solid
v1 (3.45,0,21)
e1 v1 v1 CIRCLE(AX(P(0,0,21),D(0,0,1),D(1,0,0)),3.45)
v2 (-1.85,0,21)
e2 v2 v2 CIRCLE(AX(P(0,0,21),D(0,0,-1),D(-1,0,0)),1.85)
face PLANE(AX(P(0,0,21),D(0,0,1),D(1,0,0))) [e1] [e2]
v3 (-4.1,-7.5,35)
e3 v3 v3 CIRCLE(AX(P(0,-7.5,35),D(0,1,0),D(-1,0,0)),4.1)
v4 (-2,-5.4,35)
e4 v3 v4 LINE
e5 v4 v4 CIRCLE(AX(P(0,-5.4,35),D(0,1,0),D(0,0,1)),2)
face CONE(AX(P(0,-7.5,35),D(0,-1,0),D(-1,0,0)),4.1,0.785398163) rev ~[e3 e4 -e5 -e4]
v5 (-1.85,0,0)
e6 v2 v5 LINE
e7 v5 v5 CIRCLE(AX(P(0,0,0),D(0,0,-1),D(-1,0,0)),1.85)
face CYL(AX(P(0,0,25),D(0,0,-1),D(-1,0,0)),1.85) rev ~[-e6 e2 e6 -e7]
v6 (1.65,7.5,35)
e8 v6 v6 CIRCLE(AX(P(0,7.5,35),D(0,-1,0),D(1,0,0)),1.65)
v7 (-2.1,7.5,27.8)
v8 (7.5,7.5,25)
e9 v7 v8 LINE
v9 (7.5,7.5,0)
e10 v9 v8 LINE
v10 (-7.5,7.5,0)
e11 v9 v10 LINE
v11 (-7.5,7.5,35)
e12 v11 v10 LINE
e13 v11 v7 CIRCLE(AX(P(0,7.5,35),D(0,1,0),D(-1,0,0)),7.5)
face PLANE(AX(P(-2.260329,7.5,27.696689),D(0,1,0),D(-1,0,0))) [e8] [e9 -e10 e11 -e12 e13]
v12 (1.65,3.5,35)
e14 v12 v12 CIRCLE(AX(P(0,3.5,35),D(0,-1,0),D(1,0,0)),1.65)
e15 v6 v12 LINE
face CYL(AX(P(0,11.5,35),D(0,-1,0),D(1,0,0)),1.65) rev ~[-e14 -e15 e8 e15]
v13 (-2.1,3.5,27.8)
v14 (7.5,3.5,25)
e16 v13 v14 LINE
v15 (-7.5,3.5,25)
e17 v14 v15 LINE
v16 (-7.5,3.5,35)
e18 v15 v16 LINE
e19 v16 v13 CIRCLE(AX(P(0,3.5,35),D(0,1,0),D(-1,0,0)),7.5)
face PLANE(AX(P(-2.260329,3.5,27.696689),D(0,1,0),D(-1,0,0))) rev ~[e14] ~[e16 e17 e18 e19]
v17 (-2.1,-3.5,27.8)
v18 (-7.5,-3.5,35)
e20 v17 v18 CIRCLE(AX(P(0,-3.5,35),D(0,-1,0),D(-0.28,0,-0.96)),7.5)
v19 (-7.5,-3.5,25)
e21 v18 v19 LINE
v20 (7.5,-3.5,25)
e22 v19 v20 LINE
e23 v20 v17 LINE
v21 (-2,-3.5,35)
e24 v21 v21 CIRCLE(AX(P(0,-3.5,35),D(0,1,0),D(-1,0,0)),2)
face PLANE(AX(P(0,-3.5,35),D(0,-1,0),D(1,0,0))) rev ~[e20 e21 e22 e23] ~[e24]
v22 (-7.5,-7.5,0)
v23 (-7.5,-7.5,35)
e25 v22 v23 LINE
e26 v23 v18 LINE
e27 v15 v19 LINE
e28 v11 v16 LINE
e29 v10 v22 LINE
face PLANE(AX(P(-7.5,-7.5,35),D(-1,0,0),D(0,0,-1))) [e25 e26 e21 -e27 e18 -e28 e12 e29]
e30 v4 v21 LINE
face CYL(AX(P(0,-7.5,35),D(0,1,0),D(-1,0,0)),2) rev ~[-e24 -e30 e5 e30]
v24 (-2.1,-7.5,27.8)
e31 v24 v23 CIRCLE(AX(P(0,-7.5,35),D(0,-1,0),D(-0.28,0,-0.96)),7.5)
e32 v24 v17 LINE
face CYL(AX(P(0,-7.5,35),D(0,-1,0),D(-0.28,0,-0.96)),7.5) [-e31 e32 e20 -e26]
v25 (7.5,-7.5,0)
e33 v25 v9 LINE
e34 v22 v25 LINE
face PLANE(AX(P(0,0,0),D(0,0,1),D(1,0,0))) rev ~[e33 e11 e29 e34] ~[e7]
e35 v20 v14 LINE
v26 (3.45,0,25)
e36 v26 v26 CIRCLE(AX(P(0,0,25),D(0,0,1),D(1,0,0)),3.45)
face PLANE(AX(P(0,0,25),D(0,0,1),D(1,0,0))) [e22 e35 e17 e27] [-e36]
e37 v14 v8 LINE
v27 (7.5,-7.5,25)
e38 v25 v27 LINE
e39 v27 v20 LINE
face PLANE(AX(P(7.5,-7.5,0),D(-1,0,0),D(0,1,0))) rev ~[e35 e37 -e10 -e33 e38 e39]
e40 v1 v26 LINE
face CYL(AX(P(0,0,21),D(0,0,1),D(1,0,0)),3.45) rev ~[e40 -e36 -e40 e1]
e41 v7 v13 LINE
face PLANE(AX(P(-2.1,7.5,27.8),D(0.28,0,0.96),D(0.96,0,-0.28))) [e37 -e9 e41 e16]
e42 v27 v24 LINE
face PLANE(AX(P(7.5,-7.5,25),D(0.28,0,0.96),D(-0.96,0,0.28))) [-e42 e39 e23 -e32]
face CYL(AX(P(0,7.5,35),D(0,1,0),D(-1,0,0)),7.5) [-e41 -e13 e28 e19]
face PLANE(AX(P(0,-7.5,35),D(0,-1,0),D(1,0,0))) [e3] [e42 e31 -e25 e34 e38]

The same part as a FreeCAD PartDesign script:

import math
import FreeCAD as App
import Part
import Sketcher

doc = App.newDocument("Part")
body = doc.addObject("PartDesign::Body", "Body")

sketch1 = body.newObject("Sketcher::SketchObject", "Sketch")
sketch1.AttachmentSupport = (doc.getObject("XY_Plane"), [""])
sketch1.MapMode = "FlatFace"
sketch1.addGeometry(Part.LineSegment(App.Vector(8, -8, 0), App.Vector(8, 8, 0)), False)
sketch1.addGeometry(Part.LineSegment(App.Vector(8, 8, 0), App.Vector(-8, 8, 0)), False)
sketch1.addGeometry(Part.LineSegment(App.Vector(-8, 8, 0), App.Vector(-8, -8, 0)), False)
sketch1.addGeometry(Part.LineSegment(App.Vector(-8, -8, 0), App.Vector(8, -8, 0)), False)
sketch1.addConstraint(Sketcher.Constraint("Coincident", 0, 2, 1, 1))
sketch1.addConstraint(Sketcher.Constraint("Coincident", 1, 2, 2, 1))
sketch1.addConstraint(Sketcher.Constraint("Coincident", 2, 2, 3, 1))
sketch1.addConstraint(Sketcher.Constraint("Coincident", 3, 2, 0, 1))
sketch1.addConstraint(Sketcher.Constraint("Vertical", 0))
sketch1.addConstraint(Sketcher.Constraint("Horizontal", 1))
sketch1.addConstraint(Sketcher.Constraint("Vertical", 2))
sketch1.addConstraint(Sketcher.Constraint("Horizontal", 3))
sketch1.addConstraint(Sketcher.Constraint("Symmetric", 0, 2, 2, 2, -1, 1))
sketch1.addConstraint(Sketcher.Constraint("Equal", 3, 0))
sketch1.addConstraint(Sketcher.Constraint("DistanceX", 1, 2, 1, 1, 15.0))
pad1 = body.newObject("PartDesign::Pad", "Pad")
pad1.Profile = sketch1
pad1.Length = 25

sketch2 = body.newObject("Sketcher::SketchObject", "Sketch001")
sketch2.AttachmentSupport = (doc.getObject("XY_Plane"), [""])
sketch2.MapMode = "FlatFace"
sketch2.AttachmentOffset = App.Placement(App.Vector(0, 0, 25), App.Rotation())
sketch2.addGeometry(Part.Circle(App.Vector(0, 0, 0), App.Vector(0, 0, 1), 1.9), False)
sketch2.addConstraint(Sketcher.Constraint("Coincident", 0, 3, -1, 1))
sketch2.addConstraint(Sketcher.Constraint("Diameter", 0, 3.7))
doc.recompute()
hole = body.newObject("PartDesign::Hole", "Hole")
hole.Profile = sketch2
hole.ThreadType = "None"
hole.Diameter = 3.7
hole.DepthType = "ThroughAll"
hole.HoleCutType = "Counterbore"
hole.HoleCutDiameter = 6.9
hole.HoleCutDepth = 4

sketch3 = body.newObject("Sketcher::SketchObject", "Sketch002")
sketch3.AttachmentSupport = (doc.getObject("XZ_Plane"), [""])
sketch3.MapMode = "FlatFace"
sketch3.AttachmentOffset = App.Placement(App.Vector(0, 0, -7.5), App.Rotation())
sketch3.addGeometry(Part.LineSegment(App.Vector(8, 25, 0), App.Vector(-8, 25, 0)), False)
sketch3.addGeometry(Part.LineSegment(App.Vector(-8, 25, 0), App.Vector(-8, 35, 0)), False)
sketch3.addGeometry(Part.ArcOfCircle(Part.Circle(App.Vector(0, 35, 0), App.Vector(0, 0, 1), 8), math.radians(-106), math.radians(180)), False)
sketch3.addGeometry(Part.LineSegment(App.Vector(-2, 28, 0), App.Vector(8, 25, 0)), False)
sketch3.addConstraint(Sketcher.Constraint("Coincident", 0, 2, 1, 1))
sketch3.addConstraint(Sketcher.Constraint("Tangent", 1, 2, 2, 2))
sketch3.addConstraint(Sketcher.Constraint("Tangent", 2, 1, 3, 1))
sketch3.addConstraint(Sketcher.Constraint("Coincident", 3, 2, 0, 1))
sketch3.addConstraint(Sketcher.Constraint("Horizontal", 0))
sketch3.addConstraint(Sketcher.Constraint("Vertical", 1))
sketch3.addConstraint(Sketcher.Constraint("PointOnObject", 2, 3, -2))
sketch3.addConstraint(Sketcher.Constraint("Radius", 2, 7.5))
sketch3.addConstraint(Sketcher.Constraint("DistanceX", 0, 2, 0, 1, 15.0))
sketch3.addConstraint(Sketcher.Constraint("DistanceY", 1, 1, 1, 2, 10.0))
sketch3.addConstraint(Sketcher.Constraint("DistanceY", -1, 1, 2, 3, 35.0))
pad2 = body.newObject("PartDesign::Pad", "Pad001")
pad2.Profile = sketch3
pad2.Length = 4

sketch4 = body.newObject("Sketcher::SketchObject", "Sketch003")
sketch4.AttachmentSupport = (doc.getObject("XZ_Plane"), [""])
sketch4.MapMode = "FlatFace"
sketch4.AttachmentOffset = App.Placement(App.Vector(0, 0, 7.5), App.Rotation())
sketch4.addGeometry(Part.ArcOfCircle(Part.Circle(App.Vector(0, 35, 0), App.Vector(0, 0, 1), 8), math.radians(-106), math.radians(180)), False)
sketch4.addGeometry(Part.LineSegment(App.Vector(-8, 35, 0), App.Vector(-8, 25, 0)), False)
sketch4.addGeometry(Part.LineSegment(App.Vector(-8, 25, 0), App.Vector(8, 25, 0)), False)
sketch4.addGeometry(Part.LineSegment(App.Vector(8, 25, 0), App.Vector(-2, 28, 0)), False)
sketch4.addConstraint(Sketcher.Constraint("Tangent", 0, 2, 1, 1))
sketch4.addConstraint(Sketcher.Constraint("Coincident", 1, 2, 2, 1))
sketch4.addConstraint(Sketcher.Constraint("Coincident", 2, 2, 3, 1))
sketch4.addConstraint(Sketcher.Constraint("Tangent", 3, 2, 0, 1))
sketch4.addConstraint(Sketcher.Constraint("Vertical", 1))
sketch4.addConstraint(Sketcher.Constraint("Horizontal", 2))
sketch4.addConstraint(Sketcher.Constraint("PointOnObject", 0, 3, -2))
sketch4.addConstraint(Sketcher.Constraint("Radius", 0, 7.5))
sketch4.addConstraint(Sketcher.Constraint("DistanceX", 2, 1, 2, 2, 15.0))
sketch4.addConstraint(Sketcher.Constraint("DistanceY", 1, 2, 1, 1, 10.0))
sketch4.addConstraint(Sketcher.Constraint("DistanceY", -1, 1, 0, 3, 35.0))
pad3 = body.newObject("PartDesign::Pad", "Pad002")
pad3.Profile = sketch4
pad3.Length = 4
pad3.Reversed = True

sketch5 = body.newObject("Sketcher::SketchObject", "Sketch004")
sketch5.AttachmentSupport = (doc.getObject("XZ_Plane"), [""])
sketch5.MapMode = "FlatFace"
sketch5.AttachmentOffset = App.Placement(App.Vector(0, 0, 7.5), App.Rotation())
sketch5.addGeometry(Part.Circle(App.Vector(0, 35, 0), App.Vector(0, 0, 1), 2), False)
sketch5.addConstraint(Sketcher.Constraint("PointOnObject", 0, 3, -2))
sketch5.addConstraint(Sketcher.Constraint("Diameter", 0, 4.0))
sketch5.addConstraint(Sketcher.Constraint("DistanceY", -1, 1, 0, 3, 35.0))
doc.recompute()
hole2 = body.newObject("PartDesign::Hole", "Hole001")
hole2.Profile = sketch5
hole2.ThreadType = "None"
hole2.Diameter = 4
hole2.DepthType = "Dimension"
hole2.Depth = 4
hole2.DrillPoint = "Flat"
hole2.HoleCutType = "Countersink"
hole2.HoleCutDiameter = 8.2
hole2.HoleCutCountersinkAngle = 90

sketch6 = body.newObject("Sketcher::SketchObject", "Sketch005")
sketch6.AttachmentSupport = (doc.getObject("XZ_Plane"), [""])
sketch6.MapMode = "FlatFace"
sketch6.AttachmentOffset = App.Placement(App.Vector(0, 0, -7.5), App.Rotation())
sketch6.addGeometry(Part.Circle(App.Vector(0, 35, 0), App.Vector(0, 0, 1), 1.6), False)
sketch6.addConstraint(Sketcher.Constraint("PointOnObject", 0, 3, -2))
sketch6.addConstraint(Sketcher.Constraint("Diameter", 0, 3.3))
sketch6.addConstraint(Sketcher.Constraint("DistanceY", -1, 1, 0, 3, 35.0))
doc.recompute()
hole3 = body.newObject("PartDesign::Hole", "Hole002")
hole3.Profile = sketch6
hole3.ThreadType = "None"
hole3.Diameter = 3.3
hole3.DepthType = "Dimension"
hole3.Depth = 4
hole3.DrillPoint = "Flat"
hole3.Reversed = True

doc.recompute()
